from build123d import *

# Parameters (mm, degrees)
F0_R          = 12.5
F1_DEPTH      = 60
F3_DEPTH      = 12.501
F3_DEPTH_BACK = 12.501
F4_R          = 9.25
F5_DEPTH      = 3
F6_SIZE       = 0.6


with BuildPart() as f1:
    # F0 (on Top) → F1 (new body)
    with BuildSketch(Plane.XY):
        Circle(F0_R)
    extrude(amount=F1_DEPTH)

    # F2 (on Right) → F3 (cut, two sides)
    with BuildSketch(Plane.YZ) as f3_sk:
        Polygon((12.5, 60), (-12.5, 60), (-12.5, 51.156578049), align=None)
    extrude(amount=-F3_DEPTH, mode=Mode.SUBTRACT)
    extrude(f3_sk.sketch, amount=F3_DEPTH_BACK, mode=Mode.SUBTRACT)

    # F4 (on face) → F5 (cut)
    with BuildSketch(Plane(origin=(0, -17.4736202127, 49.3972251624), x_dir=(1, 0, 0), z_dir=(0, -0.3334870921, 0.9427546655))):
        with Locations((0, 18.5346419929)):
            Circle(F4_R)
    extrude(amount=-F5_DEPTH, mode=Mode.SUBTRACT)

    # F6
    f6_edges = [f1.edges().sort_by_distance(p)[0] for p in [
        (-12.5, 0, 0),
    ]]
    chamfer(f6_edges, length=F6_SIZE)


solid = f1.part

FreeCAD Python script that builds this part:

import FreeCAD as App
import Part
import Sketcher

V = App.Vector


def edges_at(feature, points):
    """Names of the edges that pass closest to the given points."""
    edges = feature.Shape.Edges
    near = lambda p: min(range(len(edges)), key=lambda i: edges[i].distToShape(Part.Vertex(*p))[0])
    return sorted({f"Edge{near(p) + 1}" for p in points})


def add_polygon(sketch, points):
    """Adds a closed chain of lines whose ends are joined by coincident constraints."""
    first, n = sketch.GeometryCount, len(points)
    for a, b in zip(points, points[1:] + points[:1]):
        sketch.addGeometry(Part.LineSegment(App.Vector(*a, 0), App.Vector(*b, 0)), False)
    for i in range(n):
        sketch.addConstraint(Sketcher.Constraint("Coincident", first + i, 2, first + (i + 1) % n, 1))

doc = App.newDocument("Part")
body = doc.addObject("PartDesign::Body", "Body")

# Sketch on XY plane
sketch1 = doc.addObject("Sketcher::SketchObject", "Sketch")
body.addObject(sketch1)
sketch1.AttachmentSupport = (doc.XY_Plane, [""])
sketch1.MapMode = "FlatFace"
sketch1.addGeometry(Part.Circle(V(0, 0, 0), V(0, 0, 1), 12.5), False)
sketch1.addConstraint(Sketcher.Constraint("Coincident", 0, 3, -1, 1))
sketch1.addConstraint(Sketcher.Constraint("Diameter", 0, 25.0))
pad1 = doc.addObject("PartDesign::Pad", "Pad")
body.addObject(pad1)
pad1.Profile = sketch1
pad1.Length = 60

# Sketch on YZ plane
sketch2 = doc.addObject("Sketcher::SketchObject", "Sketch001")
body.addObject(sketch2)
sketch2.AttachmentSupport = (doc.YZ_Plane, [""])
sketch2.MapMode = "FlatFace"
add_polygon(sketch2, [(12.5, 60), (-12.5, 60), (-12.5, 51.156578)])  # lines 0-2
sketch2.addConstraint(Sketcher.Constraint("Horizontal", 0))
sketch2.addConstraint(Sketcher.Constraint("Vertical", 1))
sketch2.addConstraint(Sketcher.Constraint("DistanceX", 0, 2, 0, 1, 25.0))
sketch2.addConstraint(Sketcher.Constraint("DistanceY", -1, 1, 0, 2, 60.0))
sketch2.addConstraint(Sketcher.Constraint("DistanceX", 0, 2, -1, 1, 12.5))
sketch2.addConstraint(Sketcher.Constraint("DistanceY", 1, 2, 1, 1, 8.843422))
pocket1 = doc.addObject("PartDesign::Pocket", "Pocket")
body.addObject(pocket1)
pocket1.Profile = sketch2
pocket1.Type = "ThroughAll"
pocket1.Midplane = True

# Sketch on an angled plane
sketch3 = doc.addObject("Sketcher::SketchObject", "Sketch002")
body.addObject(sketch3)
sketch3.Placement = App.Placement(V(0, -17.47362, 49.397225), App.Rotation(V(1, 0, 0), V(0, 0.942754666, 0.333487092), V(0, -0.333487092, 0.942754666), "ZXY"))
sketch3.addGeometry(Part.Circle(V(0, 18.534642, 0), V(0, 0, 1), 9.25), False)
sketch3.addConstraint(Sketcher.Constraint("PointOnObject", 0, 3, -2))
sketch3.addConstraint(Sketcher.Constraint("Diameter", 0, 18.5))
sketch3.addConstraint(Sketcher.Constraint("DistanceY", -1, 1, 0, 3, 18.534642))
pocket2 = doc.addObject("PartDesign::Pocket", "Pocket001")
body.addObject(pocket2)
pocket2.Profile = sketch3
pocket2.Length = 3
doc.recompute()

chamfer = doc.addObject("PartDesign::Chamfer", "Chamfer")
body.addObject(chamfer)
chamfer.Base = (pocket2, edges_at(pocket2, [(-12.5, 0, 0)]))
chamfer.Size = 0.6

doc.recompute()
